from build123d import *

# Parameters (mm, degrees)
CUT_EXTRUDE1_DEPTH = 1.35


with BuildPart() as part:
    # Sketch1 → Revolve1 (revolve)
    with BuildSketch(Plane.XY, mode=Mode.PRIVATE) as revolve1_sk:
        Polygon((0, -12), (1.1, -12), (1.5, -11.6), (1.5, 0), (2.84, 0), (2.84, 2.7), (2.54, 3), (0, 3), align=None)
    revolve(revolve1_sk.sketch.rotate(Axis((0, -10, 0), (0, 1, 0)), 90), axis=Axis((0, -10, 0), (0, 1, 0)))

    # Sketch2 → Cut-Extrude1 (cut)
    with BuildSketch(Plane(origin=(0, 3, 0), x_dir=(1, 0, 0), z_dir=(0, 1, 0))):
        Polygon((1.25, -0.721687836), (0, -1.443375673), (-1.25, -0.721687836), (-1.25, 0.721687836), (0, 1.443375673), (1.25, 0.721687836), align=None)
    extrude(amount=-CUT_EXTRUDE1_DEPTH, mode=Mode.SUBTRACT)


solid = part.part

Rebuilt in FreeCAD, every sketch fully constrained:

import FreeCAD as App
import Part
import Sketcher

V = App.Vector
Q = App.Units.Quantity


def add_polygon(sketch, points):
    """Adds a closed chain of lines whose ends are joined by coincident constraints."""
    first, n = sketch.GeometryCount, len(points)
    for a, b in zip(points, points[1:] + points[:1]):
        sketch.addGeometry(Part.LineSegment(App.Vector(*a, 0), App.Vector(*b, 0)), False)
    for i in range(n):
        sketch.addConstraint(Sketcher.Constraint("Coincident", first + i, 2, first + (i + 1) % n, 1))

doc = App.newDocument("Part")
params = doc.addObject("Spreadsheet::Sheet", "Params")
for row, (alias, value) in enumerate([
    ("sketch1_height", "15 mm"),
    ("sketch1_width", "1.1 mm"),
    ("sketch1_height2", "11.6 mm"),
    ("sketch1_height3", "2.7 mm"),
    ("sketch1_width2", "1.34 mm"),
    ("revolution_angle", "360 deg"),
    ("pocket1_length", "1.35 mm"),
], start=1):
    params.set(f"A{row}", alias)
    params.set(f"B{row}", "=" + value)
    params.setAlias(f"B{row}", alias)

body = doc.addObject("PartDesign::Body", "Body")

# Sketch on XY plane
sketch1 = doc.addObject("Sketcher::SketchObject", "Sketch")
body.addObject(sketch1)
sketch1.AttachmentSupport = (doc.XY_Plane, [""])
sketch1.MapMode = "FlatFace"
add_polygon(sketch1, [(0, -12), (1.1, -12), (1.5, -11.6), (1.5, 0), (2.84, 0), (2.84, 2.7), (2.54, 3), (0, 3)])  # lines 0-7
sketch1.addConstraint([
    Sketcher.Constraint("Horizontal", 0),
    Sketcher.Constraint("Vertical", 2),
    Sketcher.Constraint("Horizontal", 3),
    Sketcher.Constraint("Vertical", 4),
    Sketcher.Constraint("Horizontal", 6),
    Sketcher.Constraint("Vertical", 7),
    Sketcher.Constraint("PointOnObject", 2, 2, -1),
    Sketcher.Constraint("PointOnObject", 6, 2, -2),
    Sketcher.Constraint("Perpendicular", 1, 5),
    Sketcher.Constraint("DistanceY", 7, 2, 7, 1, 15.0),
    Sketcher.Constraint("Angle", 1, Q("45 deg")),
    Sketcher.Constraint("DistanceX", 0, 1, 0, 2, 1.1),
    Sketcher.Constraint("DistanceY", 2, 1, 2, 2, 11.6),
    Sketcher.Constraint("DistanceY", 4, 1, 4, 2, 2.7),
    Sketcher.Constraint("DistanceY", 0, 2, -1, 1, 12.0),
    Sketcher.Constraint("DistanceX", 3, 1, 3, 2, 1.34),
])
sketch1.setExpression("Constraints[17]", "Params.sketch1_height")
sketch1.setExpression("Constraints[19]", "Params.sketch1_width")
sketch1.setExpression("Constraints[20]", "Params.sketch1_height2")
sketch1.setExpression("Constraints[21]", "Params.sketch1_height3")
sketch1.setExpression("Constraints[23]", "Params.sketch1_width2")
revolution = doc.addObject("PartDesign::Revolution", "Revolution")
body.addObject(revolution)
revolution.Profile = sketch1
revolution.ReferenceAxis = (sketch1, ["V_Axis"])
revolution.setExpression("Angle", "Params.revolution_angle")

# Sketch on XZ plane
sketch2 = doc.addObject("Sketcher::SketchObject", "Sketch001")
body.addObject(sketch2)
sketch2.AttachmentSupport = (doc.XZ_Plane, [""])
sketch2.MapMode = "FlatFace"
sketch2.AttachmentOffset = App.Placement(V(0, 0, -3), App.Rotation())
add_polygon(sketch2, [(0, 1.4), (1.2, 0.7), (1.2, -0.7), (0, -1.4), (-1.2, -0.7), (-1.2, 0.7)])  # lines 0-5
sketch2.addConstraint([
    Sketcher.Constraint("Vertical", 1),
    Sketcher.Constraint("Vertical", 4),
    Sketcher.Constraint("Symmetric", 0, 2, 3, 2, -1, 1),
    Sketcher.Constraint("Symmetric", 2, 2, 5, 2, -1, 1),
    Sketcher.Constraint("PointOnObject", 2, 2, -2),
    Sketcher.Constraint("Parallel", 2, 5),
    Sketcher.Constraint("Horizontal", 1, 2, 3, 2),
    Sketcher.Constraint("Angle", 0, Q("-30 deg")),
    Sketcher.Constraint("DistanceX", 3, 2, 1, 2, 2.5),
    Sketcher.Constraint("DistanceY", 1, 2, 1, 1, 1.443376),
])
pocket1 = doc.addObject("PartDesign::Pocket", "Pocket")
body.addObject(pocket1)
pocket1.Profile = sketch2
pocket1.setExpression("Length", "Params.pocket1_length")
pocket1.Reversed = True

doc.recompute()
